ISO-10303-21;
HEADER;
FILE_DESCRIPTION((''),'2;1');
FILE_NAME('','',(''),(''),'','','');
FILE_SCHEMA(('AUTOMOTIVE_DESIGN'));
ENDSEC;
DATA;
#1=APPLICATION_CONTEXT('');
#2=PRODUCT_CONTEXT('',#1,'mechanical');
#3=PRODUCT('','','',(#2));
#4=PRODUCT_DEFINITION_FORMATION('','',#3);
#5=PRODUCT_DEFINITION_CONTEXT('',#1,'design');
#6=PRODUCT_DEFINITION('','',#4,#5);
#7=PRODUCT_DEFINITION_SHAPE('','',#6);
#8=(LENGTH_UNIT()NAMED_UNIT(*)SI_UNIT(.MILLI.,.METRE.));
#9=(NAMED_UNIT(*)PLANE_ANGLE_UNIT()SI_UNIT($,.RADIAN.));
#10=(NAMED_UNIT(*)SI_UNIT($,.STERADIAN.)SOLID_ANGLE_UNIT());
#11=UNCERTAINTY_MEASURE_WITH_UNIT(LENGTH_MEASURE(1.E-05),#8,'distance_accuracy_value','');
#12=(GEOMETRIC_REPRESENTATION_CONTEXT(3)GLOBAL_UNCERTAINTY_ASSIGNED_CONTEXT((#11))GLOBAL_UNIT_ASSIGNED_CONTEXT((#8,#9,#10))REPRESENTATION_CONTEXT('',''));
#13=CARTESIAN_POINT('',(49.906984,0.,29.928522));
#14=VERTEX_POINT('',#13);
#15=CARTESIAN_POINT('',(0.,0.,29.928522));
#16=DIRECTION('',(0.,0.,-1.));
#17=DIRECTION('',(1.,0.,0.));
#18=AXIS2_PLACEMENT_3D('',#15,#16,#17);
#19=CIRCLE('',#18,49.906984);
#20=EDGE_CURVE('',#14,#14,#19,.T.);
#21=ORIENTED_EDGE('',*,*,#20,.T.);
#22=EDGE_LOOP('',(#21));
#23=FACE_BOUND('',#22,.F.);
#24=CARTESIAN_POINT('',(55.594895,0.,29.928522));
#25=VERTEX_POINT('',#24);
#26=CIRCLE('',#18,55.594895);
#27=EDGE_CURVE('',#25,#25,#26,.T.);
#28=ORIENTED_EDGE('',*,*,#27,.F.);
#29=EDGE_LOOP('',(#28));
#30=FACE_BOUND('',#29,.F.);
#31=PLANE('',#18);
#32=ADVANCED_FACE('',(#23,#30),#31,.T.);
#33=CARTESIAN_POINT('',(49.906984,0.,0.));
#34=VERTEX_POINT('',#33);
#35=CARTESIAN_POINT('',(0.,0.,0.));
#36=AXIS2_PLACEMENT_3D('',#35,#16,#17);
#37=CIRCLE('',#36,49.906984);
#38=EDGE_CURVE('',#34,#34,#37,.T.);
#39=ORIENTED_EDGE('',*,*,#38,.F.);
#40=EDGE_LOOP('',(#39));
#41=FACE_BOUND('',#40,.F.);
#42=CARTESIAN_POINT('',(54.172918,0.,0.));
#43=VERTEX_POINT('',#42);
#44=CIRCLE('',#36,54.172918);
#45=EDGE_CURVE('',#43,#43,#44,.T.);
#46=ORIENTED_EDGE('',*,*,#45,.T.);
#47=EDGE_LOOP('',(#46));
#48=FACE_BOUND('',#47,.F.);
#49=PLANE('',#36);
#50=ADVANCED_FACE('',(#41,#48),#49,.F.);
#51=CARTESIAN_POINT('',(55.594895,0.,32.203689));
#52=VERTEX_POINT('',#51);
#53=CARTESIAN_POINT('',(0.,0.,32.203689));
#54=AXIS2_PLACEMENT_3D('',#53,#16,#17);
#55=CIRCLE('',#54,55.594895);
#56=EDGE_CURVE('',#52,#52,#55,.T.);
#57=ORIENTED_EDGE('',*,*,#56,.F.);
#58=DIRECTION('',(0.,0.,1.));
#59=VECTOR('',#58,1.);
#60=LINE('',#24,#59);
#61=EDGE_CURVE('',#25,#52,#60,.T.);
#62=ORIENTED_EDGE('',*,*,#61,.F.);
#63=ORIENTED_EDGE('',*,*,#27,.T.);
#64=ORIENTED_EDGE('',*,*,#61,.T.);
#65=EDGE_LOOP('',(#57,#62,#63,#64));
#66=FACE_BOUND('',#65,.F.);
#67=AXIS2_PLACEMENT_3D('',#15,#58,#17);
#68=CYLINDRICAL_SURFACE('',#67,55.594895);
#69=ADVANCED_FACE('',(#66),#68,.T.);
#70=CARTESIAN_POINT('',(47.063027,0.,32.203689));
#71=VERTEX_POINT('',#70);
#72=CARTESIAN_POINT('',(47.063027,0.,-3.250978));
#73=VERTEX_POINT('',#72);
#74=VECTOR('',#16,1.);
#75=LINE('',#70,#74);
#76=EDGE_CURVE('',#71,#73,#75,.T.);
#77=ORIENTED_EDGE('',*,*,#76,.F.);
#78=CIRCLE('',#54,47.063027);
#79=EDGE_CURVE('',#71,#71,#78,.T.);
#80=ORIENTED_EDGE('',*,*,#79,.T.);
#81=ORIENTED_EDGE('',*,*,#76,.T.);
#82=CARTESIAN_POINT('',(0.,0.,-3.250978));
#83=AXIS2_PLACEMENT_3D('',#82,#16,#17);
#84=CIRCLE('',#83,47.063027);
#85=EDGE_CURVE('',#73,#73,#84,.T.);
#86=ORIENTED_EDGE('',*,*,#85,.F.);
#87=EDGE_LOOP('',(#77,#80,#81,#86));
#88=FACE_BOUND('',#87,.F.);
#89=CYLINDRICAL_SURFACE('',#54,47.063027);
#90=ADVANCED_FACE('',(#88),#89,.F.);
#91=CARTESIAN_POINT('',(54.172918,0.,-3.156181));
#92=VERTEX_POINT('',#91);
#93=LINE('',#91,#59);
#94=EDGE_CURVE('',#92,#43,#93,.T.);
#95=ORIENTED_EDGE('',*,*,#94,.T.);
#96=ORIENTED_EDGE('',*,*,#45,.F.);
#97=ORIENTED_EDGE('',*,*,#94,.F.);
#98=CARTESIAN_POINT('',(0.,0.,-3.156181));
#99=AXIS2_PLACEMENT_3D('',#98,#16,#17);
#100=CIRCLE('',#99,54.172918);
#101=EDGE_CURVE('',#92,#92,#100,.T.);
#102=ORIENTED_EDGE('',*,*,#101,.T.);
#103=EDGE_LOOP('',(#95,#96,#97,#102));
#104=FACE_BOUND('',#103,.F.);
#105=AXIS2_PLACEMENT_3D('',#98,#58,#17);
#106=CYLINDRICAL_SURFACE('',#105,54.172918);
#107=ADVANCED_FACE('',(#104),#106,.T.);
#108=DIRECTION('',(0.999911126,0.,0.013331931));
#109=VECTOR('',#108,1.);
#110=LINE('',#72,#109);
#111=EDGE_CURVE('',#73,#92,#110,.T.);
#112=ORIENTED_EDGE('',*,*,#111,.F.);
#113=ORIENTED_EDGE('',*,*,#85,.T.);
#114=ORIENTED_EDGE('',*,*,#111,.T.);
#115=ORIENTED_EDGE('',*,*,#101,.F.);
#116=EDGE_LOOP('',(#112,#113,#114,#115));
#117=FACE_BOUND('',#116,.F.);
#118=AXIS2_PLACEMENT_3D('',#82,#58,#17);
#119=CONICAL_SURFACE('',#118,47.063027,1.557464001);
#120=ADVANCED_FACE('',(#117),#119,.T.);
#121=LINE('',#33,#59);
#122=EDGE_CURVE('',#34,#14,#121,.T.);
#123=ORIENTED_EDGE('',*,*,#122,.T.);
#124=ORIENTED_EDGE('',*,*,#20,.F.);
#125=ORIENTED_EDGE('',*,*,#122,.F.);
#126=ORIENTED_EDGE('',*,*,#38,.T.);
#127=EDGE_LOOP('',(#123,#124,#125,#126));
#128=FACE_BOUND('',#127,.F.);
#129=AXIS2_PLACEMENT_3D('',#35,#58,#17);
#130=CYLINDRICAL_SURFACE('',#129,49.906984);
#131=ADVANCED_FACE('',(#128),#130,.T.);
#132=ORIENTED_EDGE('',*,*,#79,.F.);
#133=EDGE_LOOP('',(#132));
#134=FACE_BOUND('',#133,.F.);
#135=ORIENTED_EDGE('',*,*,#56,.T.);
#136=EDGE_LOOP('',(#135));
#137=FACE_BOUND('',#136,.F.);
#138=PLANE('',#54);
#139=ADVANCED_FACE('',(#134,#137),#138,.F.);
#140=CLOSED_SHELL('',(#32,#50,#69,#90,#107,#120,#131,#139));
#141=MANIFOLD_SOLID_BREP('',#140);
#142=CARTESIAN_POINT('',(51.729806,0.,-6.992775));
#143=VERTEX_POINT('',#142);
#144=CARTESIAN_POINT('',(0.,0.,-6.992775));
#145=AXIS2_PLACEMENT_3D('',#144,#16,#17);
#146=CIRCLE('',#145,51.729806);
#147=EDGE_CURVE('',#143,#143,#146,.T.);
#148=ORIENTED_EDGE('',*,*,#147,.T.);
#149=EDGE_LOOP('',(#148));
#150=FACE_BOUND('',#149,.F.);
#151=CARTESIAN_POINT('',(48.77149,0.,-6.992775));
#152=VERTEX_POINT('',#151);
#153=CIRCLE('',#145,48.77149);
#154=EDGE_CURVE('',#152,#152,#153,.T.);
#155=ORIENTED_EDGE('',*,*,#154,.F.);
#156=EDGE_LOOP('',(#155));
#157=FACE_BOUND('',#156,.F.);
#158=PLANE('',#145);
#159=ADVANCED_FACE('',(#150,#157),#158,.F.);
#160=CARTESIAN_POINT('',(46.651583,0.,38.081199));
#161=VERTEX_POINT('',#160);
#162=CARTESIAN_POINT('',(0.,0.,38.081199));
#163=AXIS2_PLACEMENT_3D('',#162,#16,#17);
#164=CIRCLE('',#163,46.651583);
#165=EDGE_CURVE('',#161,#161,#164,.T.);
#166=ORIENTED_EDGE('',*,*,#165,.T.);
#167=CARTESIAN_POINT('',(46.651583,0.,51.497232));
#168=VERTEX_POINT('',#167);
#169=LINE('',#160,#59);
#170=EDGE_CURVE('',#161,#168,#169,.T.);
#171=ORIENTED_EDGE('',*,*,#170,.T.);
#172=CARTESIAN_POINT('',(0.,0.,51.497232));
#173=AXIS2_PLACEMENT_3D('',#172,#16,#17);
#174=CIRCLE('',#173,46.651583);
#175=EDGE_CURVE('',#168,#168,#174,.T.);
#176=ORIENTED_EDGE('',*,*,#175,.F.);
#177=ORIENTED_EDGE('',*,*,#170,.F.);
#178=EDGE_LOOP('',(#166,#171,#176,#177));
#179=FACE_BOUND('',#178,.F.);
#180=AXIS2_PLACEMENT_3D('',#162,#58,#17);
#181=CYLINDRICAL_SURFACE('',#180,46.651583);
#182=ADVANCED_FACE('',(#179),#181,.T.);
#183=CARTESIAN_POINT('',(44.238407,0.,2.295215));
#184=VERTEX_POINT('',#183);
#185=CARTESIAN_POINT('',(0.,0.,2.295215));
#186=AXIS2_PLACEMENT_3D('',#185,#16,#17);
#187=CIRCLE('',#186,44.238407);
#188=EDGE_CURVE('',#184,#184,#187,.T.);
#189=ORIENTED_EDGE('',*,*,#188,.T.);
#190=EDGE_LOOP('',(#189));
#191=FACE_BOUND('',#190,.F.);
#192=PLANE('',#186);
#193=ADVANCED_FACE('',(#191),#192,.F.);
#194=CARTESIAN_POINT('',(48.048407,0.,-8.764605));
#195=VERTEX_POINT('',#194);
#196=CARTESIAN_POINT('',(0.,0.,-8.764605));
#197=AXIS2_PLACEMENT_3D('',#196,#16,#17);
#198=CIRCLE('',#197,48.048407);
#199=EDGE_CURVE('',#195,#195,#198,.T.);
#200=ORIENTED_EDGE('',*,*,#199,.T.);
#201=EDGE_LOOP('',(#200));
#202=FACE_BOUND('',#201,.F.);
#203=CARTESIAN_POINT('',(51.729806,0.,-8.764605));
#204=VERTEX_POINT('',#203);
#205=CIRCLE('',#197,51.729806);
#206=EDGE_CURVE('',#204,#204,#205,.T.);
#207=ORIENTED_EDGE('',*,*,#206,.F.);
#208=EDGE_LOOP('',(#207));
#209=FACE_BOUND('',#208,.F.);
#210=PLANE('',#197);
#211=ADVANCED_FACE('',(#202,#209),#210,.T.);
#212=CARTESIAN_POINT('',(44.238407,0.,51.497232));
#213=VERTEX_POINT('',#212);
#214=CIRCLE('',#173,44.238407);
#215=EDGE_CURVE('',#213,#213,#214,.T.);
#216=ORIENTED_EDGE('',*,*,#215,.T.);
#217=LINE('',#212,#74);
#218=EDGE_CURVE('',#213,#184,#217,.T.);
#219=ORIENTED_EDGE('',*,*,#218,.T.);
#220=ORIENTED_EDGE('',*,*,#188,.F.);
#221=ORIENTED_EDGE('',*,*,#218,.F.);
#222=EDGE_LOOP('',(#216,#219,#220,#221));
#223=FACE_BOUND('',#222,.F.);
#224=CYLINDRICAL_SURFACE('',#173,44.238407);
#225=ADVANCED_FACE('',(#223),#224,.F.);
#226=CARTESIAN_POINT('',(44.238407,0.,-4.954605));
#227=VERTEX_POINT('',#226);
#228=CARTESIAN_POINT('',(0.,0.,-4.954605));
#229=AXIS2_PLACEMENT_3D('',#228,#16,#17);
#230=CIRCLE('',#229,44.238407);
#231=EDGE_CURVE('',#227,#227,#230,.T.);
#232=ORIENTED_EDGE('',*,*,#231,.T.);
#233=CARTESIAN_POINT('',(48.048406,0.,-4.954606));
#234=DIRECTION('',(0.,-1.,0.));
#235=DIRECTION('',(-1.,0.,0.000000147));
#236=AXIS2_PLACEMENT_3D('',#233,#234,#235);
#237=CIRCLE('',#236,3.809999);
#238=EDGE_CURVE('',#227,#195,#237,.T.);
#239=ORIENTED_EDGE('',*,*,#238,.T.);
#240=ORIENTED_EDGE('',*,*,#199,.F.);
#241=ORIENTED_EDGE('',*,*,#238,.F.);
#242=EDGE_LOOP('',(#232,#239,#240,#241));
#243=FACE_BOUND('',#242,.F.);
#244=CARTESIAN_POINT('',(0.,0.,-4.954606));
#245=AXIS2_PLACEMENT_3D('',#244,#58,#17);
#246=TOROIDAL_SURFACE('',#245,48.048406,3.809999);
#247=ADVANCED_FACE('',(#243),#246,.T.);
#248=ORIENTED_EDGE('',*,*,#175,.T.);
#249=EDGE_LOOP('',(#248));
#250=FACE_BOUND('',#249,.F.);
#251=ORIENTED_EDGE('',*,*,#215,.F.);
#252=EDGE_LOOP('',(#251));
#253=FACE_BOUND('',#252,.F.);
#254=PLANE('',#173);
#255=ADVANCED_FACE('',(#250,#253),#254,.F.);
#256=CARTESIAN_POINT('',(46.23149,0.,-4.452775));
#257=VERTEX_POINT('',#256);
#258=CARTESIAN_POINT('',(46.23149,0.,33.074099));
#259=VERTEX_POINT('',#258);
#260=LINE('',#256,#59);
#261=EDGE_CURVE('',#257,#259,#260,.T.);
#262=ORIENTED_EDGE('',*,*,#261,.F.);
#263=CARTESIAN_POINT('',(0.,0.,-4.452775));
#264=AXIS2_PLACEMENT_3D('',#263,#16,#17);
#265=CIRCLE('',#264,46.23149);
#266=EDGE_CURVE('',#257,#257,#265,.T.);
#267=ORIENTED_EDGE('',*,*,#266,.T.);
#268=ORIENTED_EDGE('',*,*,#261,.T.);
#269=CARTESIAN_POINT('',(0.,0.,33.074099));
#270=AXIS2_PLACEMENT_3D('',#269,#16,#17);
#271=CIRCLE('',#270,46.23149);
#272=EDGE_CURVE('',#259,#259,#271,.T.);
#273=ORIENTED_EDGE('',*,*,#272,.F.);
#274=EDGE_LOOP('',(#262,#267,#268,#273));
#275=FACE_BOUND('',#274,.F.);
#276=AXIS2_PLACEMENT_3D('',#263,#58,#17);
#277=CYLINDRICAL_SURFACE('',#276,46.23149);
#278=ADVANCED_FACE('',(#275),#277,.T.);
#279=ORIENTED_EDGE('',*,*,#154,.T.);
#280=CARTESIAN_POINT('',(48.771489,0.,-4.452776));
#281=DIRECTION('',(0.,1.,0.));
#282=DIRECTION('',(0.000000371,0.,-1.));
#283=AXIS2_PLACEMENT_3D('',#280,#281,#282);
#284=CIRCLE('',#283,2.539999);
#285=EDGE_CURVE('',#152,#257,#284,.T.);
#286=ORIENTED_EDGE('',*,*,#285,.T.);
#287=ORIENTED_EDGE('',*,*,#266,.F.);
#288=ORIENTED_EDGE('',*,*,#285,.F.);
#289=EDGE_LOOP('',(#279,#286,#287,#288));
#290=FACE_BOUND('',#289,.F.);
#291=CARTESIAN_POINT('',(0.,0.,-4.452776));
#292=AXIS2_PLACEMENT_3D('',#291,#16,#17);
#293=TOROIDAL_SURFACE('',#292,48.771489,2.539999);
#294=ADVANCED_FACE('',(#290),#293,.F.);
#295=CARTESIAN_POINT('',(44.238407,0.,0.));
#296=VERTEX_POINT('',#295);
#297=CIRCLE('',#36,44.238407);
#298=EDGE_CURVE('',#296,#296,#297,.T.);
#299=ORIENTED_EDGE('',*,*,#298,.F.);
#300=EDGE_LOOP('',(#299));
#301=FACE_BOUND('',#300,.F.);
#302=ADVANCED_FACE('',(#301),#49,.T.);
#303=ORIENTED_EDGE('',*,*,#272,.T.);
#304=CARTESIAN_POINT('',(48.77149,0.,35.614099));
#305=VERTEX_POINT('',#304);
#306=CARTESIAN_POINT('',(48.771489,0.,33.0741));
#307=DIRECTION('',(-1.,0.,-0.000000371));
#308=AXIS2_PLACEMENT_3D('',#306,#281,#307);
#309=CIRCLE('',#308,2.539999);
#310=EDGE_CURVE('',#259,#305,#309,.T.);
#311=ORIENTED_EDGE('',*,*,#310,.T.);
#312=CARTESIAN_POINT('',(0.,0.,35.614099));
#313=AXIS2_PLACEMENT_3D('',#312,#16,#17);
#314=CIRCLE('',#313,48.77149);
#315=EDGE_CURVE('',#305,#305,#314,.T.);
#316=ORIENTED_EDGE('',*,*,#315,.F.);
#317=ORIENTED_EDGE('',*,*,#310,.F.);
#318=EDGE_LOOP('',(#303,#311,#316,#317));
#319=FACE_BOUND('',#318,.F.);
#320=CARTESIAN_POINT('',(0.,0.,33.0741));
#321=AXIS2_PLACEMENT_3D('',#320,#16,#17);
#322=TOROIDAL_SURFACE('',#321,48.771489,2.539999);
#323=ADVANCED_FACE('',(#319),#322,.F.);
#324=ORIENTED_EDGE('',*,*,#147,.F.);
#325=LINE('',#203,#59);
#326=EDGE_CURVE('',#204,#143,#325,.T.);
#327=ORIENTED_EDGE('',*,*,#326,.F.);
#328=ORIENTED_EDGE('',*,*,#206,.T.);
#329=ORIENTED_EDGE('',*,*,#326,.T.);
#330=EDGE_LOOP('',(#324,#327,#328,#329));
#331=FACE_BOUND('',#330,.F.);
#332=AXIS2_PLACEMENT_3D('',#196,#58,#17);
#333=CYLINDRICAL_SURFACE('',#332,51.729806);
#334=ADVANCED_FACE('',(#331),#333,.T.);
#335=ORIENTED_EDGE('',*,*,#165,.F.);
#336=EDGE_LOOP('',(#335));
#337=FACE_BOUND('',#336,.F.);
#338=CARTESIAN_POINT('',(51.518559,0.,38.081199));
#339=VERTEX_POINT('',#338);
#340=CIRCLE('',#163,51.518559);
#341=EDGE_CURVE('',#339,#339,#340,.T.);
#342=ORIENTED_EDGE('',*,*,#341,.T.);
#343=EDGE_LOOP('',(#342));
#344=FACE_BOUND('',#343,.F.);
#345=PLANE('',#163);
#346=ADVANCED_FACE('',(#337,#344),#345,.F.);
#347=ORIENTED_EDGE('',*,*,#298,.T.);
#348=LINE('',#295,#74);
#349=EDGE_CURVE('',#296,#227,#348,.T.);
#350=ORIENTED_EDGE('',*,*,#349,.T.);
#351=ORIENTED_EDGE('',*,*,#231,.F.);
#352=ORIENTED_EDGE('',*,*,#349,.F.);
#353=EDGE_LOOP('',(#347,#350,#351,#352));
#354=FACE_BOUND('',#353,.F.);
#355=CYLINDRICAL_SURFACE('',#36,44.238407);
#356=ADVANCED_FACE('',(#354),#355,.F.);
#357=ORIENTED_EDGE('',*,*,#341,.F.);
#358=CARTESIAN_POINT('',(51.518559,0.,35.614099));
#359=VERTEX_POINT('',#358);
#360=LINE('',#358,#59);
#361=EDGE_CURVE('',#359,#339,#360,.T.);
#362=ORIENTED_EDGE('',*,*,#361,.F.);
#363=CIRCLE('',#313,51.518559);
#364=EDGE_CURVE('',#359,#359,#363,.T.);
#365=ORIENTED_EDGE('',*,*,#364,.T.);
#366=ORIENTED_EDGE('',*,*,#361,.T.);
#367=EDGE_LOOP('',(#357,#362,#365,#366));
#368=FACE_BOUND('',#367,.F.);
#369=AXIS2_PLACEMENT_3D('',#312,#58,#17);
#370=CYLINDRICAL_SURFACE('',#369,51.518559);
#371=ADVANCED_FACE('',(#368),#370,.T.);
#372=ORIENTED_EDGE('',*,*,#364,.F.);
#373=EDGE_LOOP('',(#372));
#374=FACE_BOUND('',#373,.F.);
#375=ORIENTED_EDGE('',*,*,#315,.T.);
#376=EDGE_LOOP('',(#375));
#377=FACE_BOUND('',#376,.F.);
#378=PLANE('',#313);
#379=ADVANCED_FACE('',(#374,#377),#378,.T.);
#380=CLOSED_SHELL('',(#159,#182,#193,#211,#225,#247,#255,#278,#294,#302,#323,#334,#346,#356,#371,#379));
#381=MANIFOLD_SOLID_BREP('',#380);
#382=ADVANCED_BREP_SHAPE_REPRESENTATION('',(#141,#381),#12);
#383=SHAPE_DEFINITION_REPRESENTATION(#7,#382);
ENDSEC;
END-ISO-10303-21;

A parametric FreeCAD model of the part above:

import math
import FreeCAD as App
import Part
import Sketcher

V = App.Vector
Q = App.Units.Quantity


def add_polygon(sketch, points):
    """Adds a closed chain of lines whose ends are joined by coincident constraints."""
    first, n = sketch.GeometryCount, len(points)
    for a, b in zip(points, points[1:] + points[:1]):
        sketch.addGeometry(Part.LineSegment(App.Vector(*a, 0), App.Vector(*b, 0)), False)
    for i in range(n):
        sketch.addConstraint(Sketcher.Constraint("Coincident", first + i, 2, first + (i + 1) % n, 1))

doc = App.newDocument("Part")
params = doc.addObject("Spreadsheet::Sheet", "Params")
for row, (alias, value) in enumerate([
    ("sketch1_radius", "0.1 in"),
    ("sketch1_radius2", "0.15 in"),
    ("revolution_angle", "360 deg"),
], start=1):
    params.set(f"A{row}", alias)
    params.set(f"B{row}", "=" + value)
    params.setAlias(f"B{row}", alias)

body = doc.addObject("PartDesign::Body", "Body")
body.AllowCompound = True

# Sketch on XZ plane
sketch1 = body.newObject("Sketcher::SketchObject", "Sketch")
sketch1.AttachmentSupport = (doc.getObject("XZ_Plane"), [""])
sketch1.MapMode = "FlatFace"
sketch1.addGeometry(Part.LineSegment(V(0, 2.3, 0), V(0, 0, 0)), False)  # 0
sketch1.addGeometry(Part.LineSegment(V(0, 0, 0), V(44.2, 0, 0)), False)  # 1
sketch1.addGeometry(Part.LineSegment(V(44.2, 0, 0), V(44.2, -5, 0)), False)  # 2
sketch1.addGeometry(Part.ArcOfCircle(Part.Circle(V(48, -5, 0), V(0, 0, 1), 3.8), math.radians(180), math.radians(270)), False)  # 3
sketch1.addGeometry(Part.LineSegment(V(48, -8.8, 0), V(51.7, -8.8, 0)), False)  # 4
sketch1.addGeometry(Part.LineSegment(V(51.7, -8.8, 0), V(51.7, -7, 0)), False)  # 5
sketch1.addGeometry(Part.LineSegment(V(51.7, -7, 0), V(48.8, -7, 0)), False)  # 6
sketch1.addGeometry(Part.ArcOfCircle(Part.Circle(V(48.8, -4.5, 0), V(0, 0, 1), 2.5), math.radians(180), math.radians(270)), False)  # 7
sketch1.addGeometry(Part.LineSegment(V(46.2, -4.5, 0), V(46.2, 33.1, 0)), False)  # 8
sketch1.addGeometry(Part.ArcOfCircle(Part.Circle(V(48.8, 33.1, 0), V(0, 0, 1), 2.5), math.radians(90), math.radians(180)), False)  # 9
sketch1.addGeometry(Part.LineSegment(V(48.8, 35.6, 0), V(51.5, 35.6, 0)), False)  # 10
sketch1.addGeometry(Part.LineSegment(V(51.5, 35.6, 0), V(51.5, 38.1, 0)), False)  # 11
sketch1.addGeometry(Part.LineSegment(V(51.5, 38.1, 0), V(46.7, 38.1, 0)), False)  # 12
sketch1.addGeometry(Part.LineSegment(V(46.7, 38.1, 0), V(46.7, 51.5, 0)), False)  # 13
sketch1.addGeometry(Part.LineSegment(V(46.7, 51.5, 0), V(44.2, 51.5, 0)), False)  # 14
sketch1.addGeometry(Part.LineSegment(V(44.2, 51.5, 0), V(44.2, 2.3, 0)), False)  # 15
sketch1.addGeometry(Part.LineSegment(V(44.2, 2.3, 0), V(0, 2.3, 0)), False)  # 16
add_polygon(sketch1, [(47.1, 32.2), (47.1, -3.3), (54.2, -3.2), (54.2, 0), (49.9, 0), (49.9, 29.9), (55.6, 29.9), (55.6, 32.2)])  # lines 17-24
sketch1.addConstraint([
    Sketcher.Constraint("Coincident", 0, 2, 1, 1),
    Sketcher.Constraint("Coincident", 1, 2, 2, 1),
    Sketcher.Constraint("Tangent", 2, 2, 3, 1),
    Sketcher.Constraint("Tangent", 3, 2, 4, 1),
    Sketcher.Constraint("Coincident", 4, 2, 5, 1),
    Sketcher.Constraint("Coincident", 5, 2, 6, 1),
    Sketcher.Constraint("Tangent", 6, 2, 7, 2),
    Sketcher.Constraint("Tangent", 7, 1, 8, 1),
    Sketcher.Constraint("Tangent", 8, 2, 9, 2),
    Sketcher.Constraint("Tangent", 9, 1, 10, 1),
    Sketcher.Constraint("Coincident", 10, 2, 11, 1),
    Sketcher.Constraint("Coincident", 11, 2, 12, 1),
    Sketcher.Constraint("Coincident", 12, 2, 13, 1),
    Sketcher.Constraint("Coincident", 13, 2, 14, 1),
    Sketcher.Constraint("Coincident", 14, 2, 15, 1),
    Sketcher.Constraint("Coincident", 15, 2, 16, 1),
    Sketcher.Constraint("Coincident", 16, 2, 0, 1),
    Sketcher.Constraint("Vertical", 0),
    Sketcher.Constraint("Horizontal", 1),
    Sketcher.Constraint("Vertical", 2),
    Sketcher.Constraint("Horizontal", 4),
    Sketcher.Constraint("Vertical", 5),
    Sketcher.Constraint("Horizontal", 6),
    Sketcher.Constraint("Vertical", 8),
    Sketcher.Constraint("Horizontal", 10),
    Sketcher.Constraint("Vertical", 11),
    Sketcher.Constraint("Horizontal", 12),
    Sketcher.Constraint("Vertical", 13),
    Sketcher.Constraint("Horizontal", 14),
    Sketcher.Constraint("Vertical", 15),
    Sketcher.Constraint("Horizontal", 16),
    Sketcher.Constraint("Vertical", 17),
    Sketcher.Constraint("Vertical", 19),
    Sketcher.Constraint("Horizontal", 20),
    Sketcher.Constraint("Vertical", 21),
    Sketcher.Constraint("Horizontal", 22),
    Sketcher.Constraint("Vertical", 23),
    Sketcher.Constraint("Horizontal", 24),
    Sketcher.Constraint("Coincident", 0, 2, -1, 1),
    Sketcher.Constraint("Equal", 7, 9),
    Sketcher.Constraint("PointOnObject", 19, 2, -1),
    Sketcher.Constraint("Vertical", 2, 2, 14, 2),
    Sketcher.Constraint("Radius", 7, Q("0.1 in")),
    Sketcher.Constraint("Radius", 3, Q("0.15 in")),
    Sketcher.Constraint("DistanceX", 4, 1, 4, 2, 3.681399),
    Sketcher.Constraint("DistanceY", 11, 1, 11, 2, 2.4671),
    Sketcher.Constraint("DistanceX", 10, 1, 10, 2, 2.747069),
    Sketcher.Constraint("DistanceX", 22, 1, 22, 2, 5.687911),
    Sketcher.Constraint("DistanceX", 24, 2, 24, 1, 8.531868),
    Sketcher.Constraint("DistanceY", 5, 1, 5, 2, 1.77183),
    Sketcher.Constraint("DistanceY", 19, 1, 19, 2, 3.156181),
    Sketcher.Constraint("DistanceY", -1, 1, 9, 3, 33.0741),
    Sketcher.Constraint("DistanceX", 1, 1, 1, 2, 44.238407),
    Sketcher.Constraint("DistanceX", 6, 2, 6, 1, 2.958316),
    Sketcher.Constraint("DistanceX", 12, 2, 12, 1, 4.866976),
    Sketcher.Constraint("DistanceX", 20, 2, 20, 1, 4.265934),
    Sketcher.Constraint("DistanceY", 0, 2, 0, 1, 2.295215),
    Sketcher.Constraint("DistanceY", 2, 2, 2, 1, 4.954605),
    Sketcher.Constraint("DistanceY", 13, 1, 13, 2, 13.416033),
    Sketcher.Constraint("DistanceY", 17, 2, 17, 1, 35.454667),
    Sketcher.Constraint("DistanceY", 21, 1, 21, 2, 29.928522),
    Sketcher.Constraint("DistanceY", 23, 1, 23, 2, 2.275167),
    Sketcher.Constraint("DistanceX", -1, 1, 18, 2, 54.172918),
])
sketch1.setExpression("Constraints[50]", "Params.sketch1_radius")
sketch1.setExpression("Constraints[51]", "Params.sketch1_radius2")
revolution = body.newObject("PartDesign::Revolution", "Revolution")
revolution.Profile = sketch1
revolution.ReferenceAxis = (sketch1, ["V_Axis"])
revolution.setExpression("Angle", "Params.revolution_angle")

doc.recompute()
